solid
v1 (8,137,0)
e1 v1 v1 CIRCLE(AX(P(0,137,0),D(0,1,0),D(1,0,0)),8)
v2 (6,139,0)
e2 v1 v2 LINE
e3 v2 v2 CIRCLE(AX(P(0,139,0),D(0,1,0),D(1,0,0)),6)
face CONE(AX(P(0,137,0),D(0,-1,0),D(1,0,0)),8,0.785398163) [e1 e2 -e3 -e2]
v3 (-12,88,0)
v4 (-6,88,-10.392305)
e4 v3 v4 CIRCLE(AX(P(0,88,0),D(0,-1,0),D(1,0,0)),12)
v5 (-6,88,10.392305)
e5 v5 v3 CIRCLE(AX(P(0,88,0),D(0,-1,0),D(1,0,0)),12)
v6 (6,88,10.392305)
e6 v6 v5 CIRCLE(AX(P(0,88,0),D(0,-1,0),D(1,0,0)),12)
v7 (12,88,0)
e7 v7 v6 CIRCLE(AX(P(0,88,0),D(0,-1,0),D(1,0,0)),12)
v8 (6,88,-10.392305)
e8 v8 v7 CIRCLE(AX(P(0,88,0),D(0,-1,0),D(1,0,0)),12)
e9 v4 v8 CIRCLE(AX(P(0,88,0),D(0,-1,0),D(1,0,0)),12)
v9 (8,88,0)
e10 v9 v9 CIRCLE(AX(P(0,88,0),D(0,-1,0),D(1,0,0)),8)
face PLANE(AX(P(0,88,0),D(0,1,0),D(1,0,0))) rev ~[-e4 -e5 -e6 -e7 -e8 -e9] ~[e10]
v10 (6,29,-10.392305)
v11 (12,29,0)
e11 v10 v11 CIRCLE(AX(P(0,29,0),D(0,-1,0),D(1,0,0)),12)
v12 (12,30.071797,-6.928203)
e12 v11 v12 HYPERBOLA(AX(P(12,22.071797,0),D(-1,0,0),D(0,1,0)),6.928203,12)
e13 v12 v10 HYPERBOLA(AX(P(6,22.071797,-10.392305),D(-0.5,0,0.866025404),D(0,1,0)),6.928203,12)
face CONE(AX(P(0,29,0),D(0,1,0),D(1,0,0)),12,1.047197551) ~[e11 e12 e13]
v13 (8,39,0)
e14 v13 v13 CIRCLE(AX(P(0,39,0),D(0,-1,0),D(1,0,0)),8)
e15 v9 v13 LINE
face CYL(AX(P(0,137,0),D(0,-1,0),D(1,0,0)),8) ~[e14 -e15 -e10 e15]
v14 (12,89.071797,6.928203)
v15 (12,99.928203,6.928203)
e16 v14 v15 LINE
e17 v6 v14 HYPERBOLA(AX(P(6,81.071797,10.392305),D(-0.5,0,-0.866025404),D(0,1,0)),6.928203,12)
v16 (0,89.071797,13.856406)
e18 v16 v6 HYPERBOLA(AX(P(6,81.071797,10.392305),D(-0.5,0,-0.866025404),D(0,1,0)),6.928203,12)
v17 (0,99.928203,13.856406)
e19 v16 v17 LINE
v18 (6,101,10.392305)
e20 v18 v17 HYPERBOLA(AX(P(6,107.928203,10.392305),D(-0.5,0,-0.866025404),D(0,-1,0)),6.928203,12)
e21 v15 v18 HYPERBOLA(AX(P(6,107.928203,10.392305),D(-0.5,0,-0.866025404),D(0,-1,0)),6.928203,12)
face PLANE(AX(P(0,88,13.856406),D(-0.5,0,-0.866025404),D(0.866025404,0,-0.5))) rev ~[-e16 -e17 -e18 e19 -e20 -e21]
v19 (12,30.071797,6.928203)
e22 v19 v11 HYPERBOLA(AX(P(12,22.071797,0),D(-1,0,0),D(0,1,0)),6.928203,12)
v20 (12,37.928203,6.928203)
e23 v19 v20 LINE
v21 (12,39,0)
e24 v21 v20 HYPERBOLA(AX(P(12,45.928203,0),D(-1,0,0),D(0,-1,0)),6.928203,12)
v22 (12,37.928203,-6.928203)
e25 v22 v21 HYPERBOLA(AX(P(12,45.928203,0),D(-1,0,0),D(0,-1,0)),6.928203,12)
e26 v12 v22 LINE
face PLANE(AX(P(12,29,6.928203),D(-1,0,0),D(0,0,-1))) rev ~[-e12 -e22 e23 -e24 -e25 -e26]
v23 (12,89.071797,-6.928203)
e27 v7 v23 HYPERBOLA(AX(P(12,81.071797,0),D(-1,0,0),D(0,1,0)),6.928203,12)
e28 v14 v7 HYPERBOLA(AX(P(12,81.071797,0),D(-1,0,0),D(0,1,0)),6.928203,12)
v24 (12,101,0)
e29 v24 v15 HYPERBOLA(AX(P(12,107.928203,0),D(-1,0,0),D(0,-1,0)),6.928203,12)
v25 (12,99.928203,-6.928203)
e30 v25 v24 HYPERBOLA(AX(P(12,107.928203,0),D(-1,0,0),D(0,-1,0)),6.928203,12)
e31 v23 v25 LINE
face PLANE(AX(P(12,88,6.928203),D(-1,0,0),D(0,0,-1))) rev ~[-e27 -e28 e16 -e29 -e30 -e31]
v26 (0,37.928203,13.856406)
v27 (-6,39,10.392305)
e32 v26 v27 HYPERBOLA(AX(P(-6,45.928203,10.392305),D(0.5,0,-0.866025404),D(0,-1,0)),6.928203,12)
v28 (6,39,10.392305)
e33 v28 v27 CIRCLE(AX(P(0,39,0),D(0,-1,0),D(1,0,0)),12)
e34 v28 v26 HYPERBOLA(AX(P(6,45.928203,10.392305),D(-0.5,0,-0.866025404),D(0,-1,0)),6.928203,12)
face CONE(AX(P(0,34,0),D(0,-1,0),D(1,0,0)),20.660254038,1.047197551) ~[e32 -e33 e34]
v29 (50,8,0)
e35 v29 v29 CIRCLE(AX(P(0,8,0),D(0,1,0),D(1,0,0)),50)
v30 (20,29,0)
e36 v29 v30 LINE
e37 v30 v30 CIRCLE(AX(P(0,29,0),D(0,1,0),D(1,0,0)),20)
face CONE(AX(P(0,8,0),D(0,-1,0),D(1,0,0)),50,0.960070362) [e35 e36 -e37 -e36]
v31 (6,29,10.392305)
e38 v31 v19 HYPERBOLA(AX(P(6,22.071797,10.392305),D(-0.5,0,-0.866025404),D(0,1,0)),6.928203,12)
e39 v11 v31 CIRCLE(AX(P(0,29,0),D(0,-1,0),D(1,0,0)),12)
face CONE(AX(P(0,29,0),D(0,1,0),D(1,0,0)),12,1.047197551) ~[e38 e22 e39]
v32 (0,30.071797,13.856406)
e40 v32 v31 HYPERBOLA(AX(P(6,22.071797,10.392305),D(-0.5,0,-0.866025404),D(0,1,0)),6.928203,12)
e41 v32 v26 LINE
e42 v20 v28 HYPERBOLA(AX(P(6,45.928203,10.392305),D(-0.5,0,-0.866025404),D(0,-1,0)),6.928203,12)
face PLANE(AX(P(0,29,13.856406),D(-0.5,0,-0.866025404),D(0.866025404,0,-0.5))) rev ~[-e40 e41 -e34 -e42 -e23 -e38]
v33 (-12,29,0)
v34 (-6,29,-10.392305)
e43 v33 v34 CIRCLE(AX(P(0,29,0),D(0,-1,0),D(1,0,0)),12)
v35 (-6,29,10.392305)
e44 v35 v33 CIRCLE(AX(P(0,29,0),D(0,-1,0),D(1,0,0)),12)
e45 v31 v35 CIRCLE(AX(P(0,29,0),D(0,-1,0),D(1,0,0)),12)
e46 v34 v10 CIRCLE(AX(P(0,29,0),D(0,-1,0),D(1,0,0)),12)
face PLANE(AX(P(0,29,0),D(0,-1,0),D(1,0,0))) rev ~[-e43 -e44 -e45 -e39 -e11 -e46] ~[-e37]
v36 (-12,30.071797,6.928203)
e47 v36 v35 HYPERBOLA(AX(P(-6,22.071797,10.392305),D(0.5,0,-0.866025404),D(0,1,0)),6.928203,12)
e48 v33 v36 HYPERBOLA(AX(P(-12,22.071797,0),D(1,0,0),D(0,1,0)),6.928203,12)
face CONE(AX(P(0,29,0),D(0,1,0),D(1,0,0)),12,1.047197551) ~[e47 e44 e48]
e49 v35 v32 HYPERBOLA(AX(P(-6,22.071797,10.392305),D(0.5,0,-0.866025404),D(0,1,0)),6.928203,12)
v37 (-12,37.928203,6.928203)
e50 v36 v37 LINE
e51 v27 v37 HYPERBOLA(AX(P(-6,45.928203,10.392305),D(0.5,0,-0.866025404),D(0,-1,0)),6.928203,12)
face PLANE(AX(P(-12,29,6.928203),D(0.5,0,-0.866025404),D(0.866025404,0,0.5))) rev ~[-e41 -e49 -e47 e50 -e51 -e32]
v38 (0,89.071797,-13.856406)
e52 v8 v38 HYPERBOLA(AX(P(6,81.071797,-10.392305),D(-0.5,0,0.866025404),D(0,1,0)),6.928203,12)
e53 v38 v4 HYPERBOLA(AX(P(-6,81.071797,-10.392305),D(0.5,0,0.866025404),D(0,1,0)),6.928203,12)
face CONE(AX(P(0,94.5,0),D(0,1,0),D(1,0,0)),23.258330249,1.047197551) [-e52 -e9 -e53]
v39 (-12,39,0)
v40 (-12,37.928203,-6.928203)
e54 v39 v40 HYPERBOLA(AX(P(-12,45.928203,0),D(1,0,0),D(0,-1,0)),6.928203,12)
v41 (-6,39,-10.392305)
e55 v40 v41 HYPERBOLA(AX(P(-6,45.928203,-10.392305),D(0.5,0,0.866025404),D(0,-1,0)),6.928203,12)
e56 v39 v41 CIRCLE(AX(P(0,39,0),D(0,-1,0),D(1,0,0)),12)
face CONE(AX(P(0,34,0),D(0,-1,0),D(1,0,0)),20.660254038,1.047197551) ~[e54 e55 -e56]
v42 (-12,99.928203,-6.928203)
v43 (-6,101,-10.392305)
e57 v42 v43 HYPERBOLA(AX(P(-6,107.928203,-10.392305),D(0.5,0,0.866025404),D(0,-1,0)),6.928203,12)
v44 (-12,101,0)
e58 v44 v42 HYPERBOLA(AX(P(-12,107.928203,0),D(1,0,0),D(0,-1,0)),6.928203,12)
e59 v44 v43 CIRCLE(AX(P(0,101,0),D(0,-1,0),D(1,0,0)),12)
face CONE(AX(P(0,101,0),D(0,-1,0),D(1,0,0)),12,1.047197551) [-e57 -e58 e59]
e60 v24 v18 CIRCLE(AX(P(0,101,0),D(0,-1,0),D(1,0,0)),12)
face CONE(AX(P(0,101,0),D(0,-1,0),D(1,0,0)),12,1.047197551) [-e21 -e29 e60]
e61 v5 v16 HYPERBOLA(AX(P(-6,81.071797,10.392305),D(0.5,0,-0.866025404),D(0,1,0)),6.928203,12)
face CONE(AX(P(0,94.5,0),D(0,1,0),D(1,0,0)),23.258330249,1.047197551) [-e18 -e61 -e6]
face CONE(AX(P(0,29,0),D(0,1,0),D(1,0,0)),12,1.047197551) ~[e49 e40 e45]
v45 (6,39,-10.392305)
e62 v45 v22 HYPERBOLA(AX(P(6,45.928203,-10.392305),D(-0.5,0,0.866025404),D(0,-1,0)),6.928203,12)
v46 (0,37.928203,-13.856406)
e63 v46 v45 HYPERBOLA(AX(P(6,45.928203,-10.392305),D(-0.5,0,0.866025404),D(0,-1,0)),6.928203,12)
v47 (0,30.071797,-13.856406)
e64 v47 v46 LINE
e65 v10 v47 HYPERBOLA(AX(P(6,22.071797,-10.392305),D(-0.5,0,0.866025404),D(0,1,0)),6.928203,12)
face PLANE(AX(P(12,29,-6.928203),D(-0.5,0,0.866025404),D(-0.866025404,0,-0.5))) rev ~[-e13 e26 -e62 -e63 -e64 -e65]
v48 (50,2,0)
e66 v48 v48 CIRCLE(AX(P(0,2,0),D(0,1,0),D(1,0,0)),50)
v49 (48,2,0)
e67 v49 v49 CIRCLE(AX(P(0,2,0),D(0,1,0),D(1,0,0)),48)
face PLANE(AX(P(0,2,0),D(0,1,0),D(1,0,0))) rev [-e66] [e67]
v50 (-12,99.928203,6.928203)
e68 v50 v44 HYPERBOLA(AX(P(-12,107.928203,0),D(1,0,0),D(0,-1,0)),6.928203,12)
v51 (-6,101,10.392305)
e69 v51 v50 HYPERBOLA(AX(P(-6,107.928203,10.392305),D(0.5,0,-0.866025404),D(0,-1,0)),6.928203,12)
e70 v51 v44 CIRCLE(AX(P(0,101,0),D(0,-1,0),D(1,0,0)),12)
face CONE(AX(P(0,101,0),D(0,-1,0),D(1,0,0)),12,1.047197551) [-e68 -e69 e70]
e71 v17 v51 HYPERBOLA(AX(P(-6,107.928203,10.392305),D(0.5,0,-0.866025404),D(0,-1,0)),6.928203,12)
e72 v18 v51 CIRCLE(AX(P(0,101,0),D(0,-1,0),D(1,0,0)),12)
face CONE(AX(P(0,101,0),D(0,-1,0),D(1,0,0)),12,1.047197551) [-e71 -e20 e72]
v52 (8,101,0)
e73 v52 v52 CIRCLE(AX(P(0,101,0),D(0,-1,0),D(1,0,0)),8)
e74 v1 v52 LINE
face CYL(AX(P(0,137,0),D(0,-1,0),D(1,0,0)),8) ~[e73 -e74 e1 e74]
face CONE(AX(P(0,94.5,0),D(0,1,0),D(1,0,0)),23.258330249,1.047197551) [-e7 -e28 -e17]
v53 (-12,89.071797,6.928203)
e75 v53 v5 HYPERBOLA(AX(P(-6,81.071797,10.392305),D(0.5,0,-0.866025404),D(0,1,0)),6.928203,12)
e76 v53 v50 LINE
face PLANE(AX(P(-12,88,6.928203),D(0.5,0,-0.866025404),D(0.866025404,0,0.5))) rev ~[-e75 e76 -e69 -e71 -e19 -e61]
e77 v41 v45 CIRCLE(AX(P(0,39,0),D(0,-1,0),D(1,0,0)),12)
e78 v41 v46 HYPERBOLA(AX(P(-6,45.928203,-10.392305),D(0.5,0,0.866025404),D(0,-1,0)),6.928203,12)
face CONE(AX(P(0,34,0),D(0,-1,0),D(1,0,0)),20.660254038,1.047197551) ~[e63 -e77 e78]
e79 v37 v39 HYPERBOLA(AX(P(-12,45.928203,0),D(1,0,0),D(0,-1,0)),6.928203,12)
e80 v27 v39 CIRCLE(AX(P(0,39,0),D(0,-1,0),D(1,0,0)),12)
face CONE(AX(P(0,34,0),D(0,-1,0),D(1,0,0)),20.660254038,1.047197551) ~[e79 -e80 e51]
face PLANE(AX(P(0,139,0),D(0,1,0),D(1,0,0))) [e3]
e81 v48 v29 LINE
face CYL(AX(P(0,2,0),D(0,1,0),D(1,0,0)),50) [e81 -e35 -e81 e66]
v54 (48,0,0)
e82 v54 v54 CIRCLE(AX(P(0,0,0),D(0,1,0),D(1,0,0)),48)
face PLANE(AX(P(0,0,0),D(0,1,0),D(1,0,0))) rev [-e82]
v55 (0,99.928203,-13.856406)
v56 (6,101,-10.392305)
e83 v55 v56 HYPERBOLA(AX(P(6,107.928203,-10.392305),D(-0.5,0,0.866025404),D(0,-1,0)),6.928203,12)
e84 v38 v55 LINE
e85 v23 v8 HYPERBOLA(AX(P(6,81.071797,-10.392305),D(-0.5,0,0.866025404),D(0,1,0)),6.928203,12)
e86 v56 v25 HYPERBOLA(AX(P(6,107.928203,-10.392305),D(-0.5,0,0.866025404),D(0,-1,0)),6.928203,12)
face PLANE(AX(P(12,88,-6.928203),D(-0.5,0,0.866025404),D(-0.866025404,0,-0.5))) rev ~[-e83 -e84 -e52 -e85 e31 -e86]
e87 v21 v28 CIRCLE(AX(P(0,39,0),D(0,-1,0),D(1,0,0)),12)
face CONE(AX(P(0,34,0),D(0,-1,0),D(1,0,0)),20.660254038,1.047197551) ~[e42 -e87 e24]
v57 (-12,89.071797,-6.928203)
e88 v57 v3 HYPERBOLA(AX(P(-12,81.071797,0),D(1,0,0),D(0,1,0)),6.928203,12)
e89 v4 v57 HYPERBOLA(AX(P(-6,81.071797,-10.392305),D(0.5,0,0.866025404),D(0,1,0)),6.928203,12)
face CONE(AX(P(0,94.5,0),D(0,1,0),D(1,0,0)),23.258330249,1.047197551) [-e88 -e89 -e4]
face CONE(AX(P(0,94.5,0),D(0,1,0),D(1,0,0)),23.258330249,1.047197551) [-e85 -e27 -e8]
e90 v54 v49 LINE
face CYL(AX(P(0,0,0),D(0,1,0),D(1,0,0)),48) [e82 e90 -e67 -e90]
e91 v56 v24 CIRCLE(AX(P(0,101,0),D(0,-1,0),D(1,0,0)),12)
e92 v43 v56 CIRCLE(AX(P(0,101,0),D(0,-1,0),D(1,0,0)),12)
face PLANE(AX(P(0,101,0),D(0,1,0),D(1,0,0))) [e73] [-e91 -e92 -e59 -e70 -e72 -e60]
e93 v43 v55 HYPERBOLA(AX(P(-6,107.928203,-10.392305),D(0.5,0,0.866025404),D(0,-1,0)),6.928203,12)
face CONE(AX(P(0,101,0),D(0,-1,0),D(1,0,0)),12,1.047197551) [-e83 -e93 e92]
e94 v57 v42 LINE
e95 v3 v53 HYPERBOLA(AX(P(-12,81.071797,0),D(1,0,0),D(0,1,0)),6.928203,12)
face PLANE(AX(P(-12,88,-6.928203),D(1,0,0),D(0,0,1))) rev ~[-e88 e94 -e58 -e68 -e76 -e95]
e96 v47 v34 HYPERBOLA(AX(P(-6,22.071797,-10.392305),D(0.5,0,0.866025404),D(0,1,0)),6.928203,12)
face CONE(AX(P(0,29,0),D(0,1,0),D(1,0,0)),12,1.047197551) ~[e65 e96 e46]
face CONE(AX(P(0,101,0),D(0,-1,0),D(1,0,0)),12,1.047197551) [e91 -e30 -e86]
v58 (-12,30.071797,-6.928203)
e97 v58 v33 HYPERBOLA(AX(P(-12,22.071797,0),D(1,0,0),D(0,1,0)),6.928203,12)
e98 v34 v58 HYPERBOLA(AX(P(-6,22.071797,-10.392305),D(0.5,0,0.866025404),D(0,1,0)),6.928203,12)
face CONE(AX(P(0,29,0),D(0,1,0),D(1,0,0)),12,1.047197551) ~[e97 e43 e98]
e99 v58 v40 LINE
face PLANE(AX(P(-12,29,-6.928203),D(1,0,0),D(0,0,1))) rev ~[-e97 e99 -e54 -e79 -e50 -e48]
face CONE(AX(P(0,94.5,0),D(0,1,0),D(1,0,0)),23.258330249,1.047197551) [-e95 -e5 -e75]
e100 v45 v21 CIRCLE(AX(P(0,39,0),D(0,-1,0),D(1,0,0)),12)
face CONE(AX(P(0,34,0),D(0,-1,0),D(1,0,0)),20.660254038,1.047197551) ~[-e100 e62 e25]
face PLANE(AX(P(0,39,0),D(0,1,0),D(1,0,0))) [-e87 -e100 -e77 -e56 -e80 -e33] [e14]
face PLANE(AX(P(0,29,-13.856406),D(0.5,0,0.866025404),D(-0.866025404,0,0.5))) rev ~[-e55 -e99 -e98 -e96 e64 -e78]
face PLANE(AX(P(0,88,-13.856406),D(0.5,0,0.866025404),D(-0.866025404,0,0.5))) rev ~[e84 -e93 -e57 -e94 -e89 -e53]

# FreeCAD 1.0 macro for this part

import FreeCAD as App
import Part
import Sketcher
Q = App.Units.Quantity


def add_polygon(sketch, points):
    """Adds a closed chain of lines whose ends are joined by coincident constraints."""
    first, n = sketch.GeometryCount, len(points)
    for a, b in zip(points, points[1:] + points[:1]):
        sketch.addGeometry(Part.LineSegment(App.Vector(*a, 0), App.Vector(*b, 0)), False)
    for i in range(n):
        sketch.addConstraint(Sketcher.Constraint("Coincident", first + i, 2, first + (i + 1) % n, 1))

doc = App.newDocument("Part")
body = doc.addObject("PartDesign::Body", "Body")

# Sketch on XY plane
sketch1 = body.newObject("Sketcher::SketchObject", "Sketch")
sketch1.AttachmentSupport = (doc.getObject("XY_Plane"), [""])
sketch1.MapMode = "FlatFace"
add_polygon(sketch1, [(-48, 0), (0, 0), (0, 139), (-6, 139), (-8, 137), (-8, 29), (-20, 29), (-50, 8), (-50, 2), (-48, 2)])  # lines 0-9
sketch1.addConstraint([
    Sketcher.Constraint("Horizontal", 0),
    Sketcher.Constraint("Vertical", 1),
    Sketcher.Constraint("Horizontal", 2),
    Sketcher.Constraint("Vertical", 4),
    Sketcher.Constraint("Horizontal", 5),
    Sketcher.Constraint("Vertical", 7),
    Sketcher.Constraint("Horizontal", 8),
    Sketcher.Constraint("Vertical", 9),
    Sketcher.Constraint("Coincident", 0, 2, -1, 1),
    Sketcher.Constraint("Equal", 2, 7),
    Sketcher.Constraint("Equal", 8, 9),
    Sketcher.Constraint("DistanceX", 0, 1, 0, 2, 48.0),
    Sketcher.Constraint("DistanceX", 2, 2, 2, 1, 6.0),
    Sketcher.Constraint("DistanceX", 5, 2, 5, 1, 12.0),
    Sketcher.Constraint("DistanceX", 8, 1, 8, 2, 2.0),
    Sketcher.Constraint("DistanceY", 1, 1, 1, 2, 139.0),
    Sketcher.Constraint("DistanceY", 4, 2, 4, 1, 108.0),
    Sketcher.Constraint("Angle", 3, Q("-135 deg")),
    Sketcher.Constraint("DistanceX", 3, 2, -1, 1, 8.0),
])
revolution = body.newObject("PartDesign::Revolution", "Revolution")
revolution.Profile = sketch1
revolution.ReferenceAxis = (sketch1, ["V_Axis"])
revolution.Angle = 360

# Sketch on XZ plane
sketch2 = body.newObject("Sketcher::SketchObject", "Sketch001")
sketch2.AttachmentSupport = (doc.getObject("XZ_Plane"), [""])
sketch2.MapMode = "FlatFace"
sketch2.AttachmentOffset = App.Placement(App.Vector(0, 0, -29), App.Rotation())
add_polygon(sketch2, [(0, -13.856406), (-12, -6.928203), (-12, 6.928203), (0, 13.856406), (12, 6.928203), (12, -6.928203)])  # lines 0-5
sketch2.addConstraint([
    Sketcher.Constraint("Vertical", 1),
    Sketcher.Constraint("Vertical", 4),
    Sketcher.Constraint("Symmetric", 0, 2, 3, 2, -1, 1),
    Sketcher.Constraint("Symmetric", 2, 2, 5, 2, -1, 1),
    Sketcher.Constraint("PointOnObject", 2, 2, -2),
    Sketcher.Constraint("Parallel", 2, 5),
    Sketcher.Constraint("Horizontal", 1, 2, 3, 2),
    Sketcher.Constraint("Angle", 0, Q("150 deg")),
    Sketcher.Constraint("DistanceX", 0, 2, -1, 1, 12.0),
    Sketcher.Constraint("DistanceY", 1, 1, 1, 2, 13.856406),
])
pad1 = body.newObject("PartDesign::Pad", "Pad")
pad1.Profile = sketch2
pad1.Length = 10
pad1.Reversed = True

# Sketch on XZ plane
sketch3 = body.newObject("Sketcher::SketchObject", "Sketch002")
sketch3.AttachmentSupport = (doc.getObject("XZ_Plane"), [""])
sketch3.MapMode = "FlatFace"
sketch3.AttachmentOffset = App.Placement(App.Vector(0, 0, -88), App.Rotation())
add_polygon(sketch3, [(12, -6.928203), (0, -13.856406), (-12, -6.928203), (-12, 6.928203), (0, 13.856406), (12, 6.928203)])  # lines 0-5
sketch3.addConstraint([
    Sketcher.Constraint("Vertical", 2),
    Sketcher.Constraint("Vertical", 5),
    Sketcher.Constraint("Symmetric", 0, 2, 3, 2, -1, 1),
    Sketcher.Constraint("Symmetric", 1, 2, 4, 2, -1, 1),
    Sketcher.Constraint("PointOnObject", 0, 2, -2),
    Sketcher.Constraint("Parallel", 0, 3),
    Sketcher.Constraint("Horizontal", 2, 2, 4, 2),
    Sketcher.Constraint("Angle", 0, Q("-150 deg")),
    Sketcher.Constraint("DistanceX", 1, 2, -1, 1, 12.0),
    Sketcher.Constraint("DistanceY", 2, 1, 2, 2, 13.856406),
])
pad2 = body.newObject("PartDesign::Pad", "Pad001")
pad2.Profile = sketch3
pad2.Length = 13
pad2.Reversed = True

# Sketch on XY plane
sketch4 = body.newObject("Sketcher::SketchObject", "Sketch003")
sketch4.AttachmentSupport = (doc.getObject("XY_Plane"), [""])
sketch4.MapMode = "FlatFace"
add_polygon(sketch4, [(-12, 101), (-23.25833, 101), (-23.25833, 94.5)])  # lines 0-2
add_polygon(sketch4, [(-23.25833, 94.5), (-23.25833, 88), (-12, 88)])  # lines 3-5
add_polygon(sketch4, [(-20.660254, 39), (-20.660254, 34), (-12, 39)])  # lines 6-8
add_polygon(sketch4, [(-20.660254, 34), (-20.660254, 29), (-12, 29)])  # lines 9-11
sketch4.addConstraint([
    Sketcher.Constraint("Horizontal", 0),
    Sketcher.Constraint("Vertical", 1),
    Sketcher.Constraint("Vertical", 3),
    Sketcher.Constraint("Horizontal", 4),
    Sketcher.Constraint("Vertical", 6),
    Sketcher.Constraint("Horizontal", 8),
    Sketcher.Constraint("Vertical", 9),
    Sketcher.Constraint("Horizontal", 10),
    Sketcher.Constraint("Coincident", 5, 2, 1, 2),
    Sketcher.Constraint("Coincident", 11, 2, 6, 2),
    Sketcher.Constraint("Parallel", 2, 7),
    Sketcher.Constraint("Parallel", 5, 11),
    Sketcher.Constraint("Vertical", 2, 2, 4, 2),
    Sketcher.Constraint("Vertical", 4, 2, 7, 2),
    Sketcher.Constraint("Vertical", 7, 2, 10, 2),
    Sketcher.Constraint("Equal", 1, 3),
    Sketcher.Constraint("DistanceY", 6, 2, 6, 1, 5.0),
    Sketcher.Constraint("Angle", 2, Q("30 deg")),
    Sketcher.Constraint("Distance", 2, 13.0),
    Sketcher.Constraint("DistanceY", -1, 1, 0, 2, 101.0),
    Sketcher.Constraint("DistanceX", 2, 2, -1, 1, 12.0),
    Sketcher.Constraint("DistanceY", -1, 1, 6, 2, 34.0),
])
groove = body.newObject("PartDesign::Groove", "Groove")
groove.Profile = sketch4
groove.ReferenceAxis = (sketch4, ["V_Axis"])
groove.Angle = 360

doc.recompute()
